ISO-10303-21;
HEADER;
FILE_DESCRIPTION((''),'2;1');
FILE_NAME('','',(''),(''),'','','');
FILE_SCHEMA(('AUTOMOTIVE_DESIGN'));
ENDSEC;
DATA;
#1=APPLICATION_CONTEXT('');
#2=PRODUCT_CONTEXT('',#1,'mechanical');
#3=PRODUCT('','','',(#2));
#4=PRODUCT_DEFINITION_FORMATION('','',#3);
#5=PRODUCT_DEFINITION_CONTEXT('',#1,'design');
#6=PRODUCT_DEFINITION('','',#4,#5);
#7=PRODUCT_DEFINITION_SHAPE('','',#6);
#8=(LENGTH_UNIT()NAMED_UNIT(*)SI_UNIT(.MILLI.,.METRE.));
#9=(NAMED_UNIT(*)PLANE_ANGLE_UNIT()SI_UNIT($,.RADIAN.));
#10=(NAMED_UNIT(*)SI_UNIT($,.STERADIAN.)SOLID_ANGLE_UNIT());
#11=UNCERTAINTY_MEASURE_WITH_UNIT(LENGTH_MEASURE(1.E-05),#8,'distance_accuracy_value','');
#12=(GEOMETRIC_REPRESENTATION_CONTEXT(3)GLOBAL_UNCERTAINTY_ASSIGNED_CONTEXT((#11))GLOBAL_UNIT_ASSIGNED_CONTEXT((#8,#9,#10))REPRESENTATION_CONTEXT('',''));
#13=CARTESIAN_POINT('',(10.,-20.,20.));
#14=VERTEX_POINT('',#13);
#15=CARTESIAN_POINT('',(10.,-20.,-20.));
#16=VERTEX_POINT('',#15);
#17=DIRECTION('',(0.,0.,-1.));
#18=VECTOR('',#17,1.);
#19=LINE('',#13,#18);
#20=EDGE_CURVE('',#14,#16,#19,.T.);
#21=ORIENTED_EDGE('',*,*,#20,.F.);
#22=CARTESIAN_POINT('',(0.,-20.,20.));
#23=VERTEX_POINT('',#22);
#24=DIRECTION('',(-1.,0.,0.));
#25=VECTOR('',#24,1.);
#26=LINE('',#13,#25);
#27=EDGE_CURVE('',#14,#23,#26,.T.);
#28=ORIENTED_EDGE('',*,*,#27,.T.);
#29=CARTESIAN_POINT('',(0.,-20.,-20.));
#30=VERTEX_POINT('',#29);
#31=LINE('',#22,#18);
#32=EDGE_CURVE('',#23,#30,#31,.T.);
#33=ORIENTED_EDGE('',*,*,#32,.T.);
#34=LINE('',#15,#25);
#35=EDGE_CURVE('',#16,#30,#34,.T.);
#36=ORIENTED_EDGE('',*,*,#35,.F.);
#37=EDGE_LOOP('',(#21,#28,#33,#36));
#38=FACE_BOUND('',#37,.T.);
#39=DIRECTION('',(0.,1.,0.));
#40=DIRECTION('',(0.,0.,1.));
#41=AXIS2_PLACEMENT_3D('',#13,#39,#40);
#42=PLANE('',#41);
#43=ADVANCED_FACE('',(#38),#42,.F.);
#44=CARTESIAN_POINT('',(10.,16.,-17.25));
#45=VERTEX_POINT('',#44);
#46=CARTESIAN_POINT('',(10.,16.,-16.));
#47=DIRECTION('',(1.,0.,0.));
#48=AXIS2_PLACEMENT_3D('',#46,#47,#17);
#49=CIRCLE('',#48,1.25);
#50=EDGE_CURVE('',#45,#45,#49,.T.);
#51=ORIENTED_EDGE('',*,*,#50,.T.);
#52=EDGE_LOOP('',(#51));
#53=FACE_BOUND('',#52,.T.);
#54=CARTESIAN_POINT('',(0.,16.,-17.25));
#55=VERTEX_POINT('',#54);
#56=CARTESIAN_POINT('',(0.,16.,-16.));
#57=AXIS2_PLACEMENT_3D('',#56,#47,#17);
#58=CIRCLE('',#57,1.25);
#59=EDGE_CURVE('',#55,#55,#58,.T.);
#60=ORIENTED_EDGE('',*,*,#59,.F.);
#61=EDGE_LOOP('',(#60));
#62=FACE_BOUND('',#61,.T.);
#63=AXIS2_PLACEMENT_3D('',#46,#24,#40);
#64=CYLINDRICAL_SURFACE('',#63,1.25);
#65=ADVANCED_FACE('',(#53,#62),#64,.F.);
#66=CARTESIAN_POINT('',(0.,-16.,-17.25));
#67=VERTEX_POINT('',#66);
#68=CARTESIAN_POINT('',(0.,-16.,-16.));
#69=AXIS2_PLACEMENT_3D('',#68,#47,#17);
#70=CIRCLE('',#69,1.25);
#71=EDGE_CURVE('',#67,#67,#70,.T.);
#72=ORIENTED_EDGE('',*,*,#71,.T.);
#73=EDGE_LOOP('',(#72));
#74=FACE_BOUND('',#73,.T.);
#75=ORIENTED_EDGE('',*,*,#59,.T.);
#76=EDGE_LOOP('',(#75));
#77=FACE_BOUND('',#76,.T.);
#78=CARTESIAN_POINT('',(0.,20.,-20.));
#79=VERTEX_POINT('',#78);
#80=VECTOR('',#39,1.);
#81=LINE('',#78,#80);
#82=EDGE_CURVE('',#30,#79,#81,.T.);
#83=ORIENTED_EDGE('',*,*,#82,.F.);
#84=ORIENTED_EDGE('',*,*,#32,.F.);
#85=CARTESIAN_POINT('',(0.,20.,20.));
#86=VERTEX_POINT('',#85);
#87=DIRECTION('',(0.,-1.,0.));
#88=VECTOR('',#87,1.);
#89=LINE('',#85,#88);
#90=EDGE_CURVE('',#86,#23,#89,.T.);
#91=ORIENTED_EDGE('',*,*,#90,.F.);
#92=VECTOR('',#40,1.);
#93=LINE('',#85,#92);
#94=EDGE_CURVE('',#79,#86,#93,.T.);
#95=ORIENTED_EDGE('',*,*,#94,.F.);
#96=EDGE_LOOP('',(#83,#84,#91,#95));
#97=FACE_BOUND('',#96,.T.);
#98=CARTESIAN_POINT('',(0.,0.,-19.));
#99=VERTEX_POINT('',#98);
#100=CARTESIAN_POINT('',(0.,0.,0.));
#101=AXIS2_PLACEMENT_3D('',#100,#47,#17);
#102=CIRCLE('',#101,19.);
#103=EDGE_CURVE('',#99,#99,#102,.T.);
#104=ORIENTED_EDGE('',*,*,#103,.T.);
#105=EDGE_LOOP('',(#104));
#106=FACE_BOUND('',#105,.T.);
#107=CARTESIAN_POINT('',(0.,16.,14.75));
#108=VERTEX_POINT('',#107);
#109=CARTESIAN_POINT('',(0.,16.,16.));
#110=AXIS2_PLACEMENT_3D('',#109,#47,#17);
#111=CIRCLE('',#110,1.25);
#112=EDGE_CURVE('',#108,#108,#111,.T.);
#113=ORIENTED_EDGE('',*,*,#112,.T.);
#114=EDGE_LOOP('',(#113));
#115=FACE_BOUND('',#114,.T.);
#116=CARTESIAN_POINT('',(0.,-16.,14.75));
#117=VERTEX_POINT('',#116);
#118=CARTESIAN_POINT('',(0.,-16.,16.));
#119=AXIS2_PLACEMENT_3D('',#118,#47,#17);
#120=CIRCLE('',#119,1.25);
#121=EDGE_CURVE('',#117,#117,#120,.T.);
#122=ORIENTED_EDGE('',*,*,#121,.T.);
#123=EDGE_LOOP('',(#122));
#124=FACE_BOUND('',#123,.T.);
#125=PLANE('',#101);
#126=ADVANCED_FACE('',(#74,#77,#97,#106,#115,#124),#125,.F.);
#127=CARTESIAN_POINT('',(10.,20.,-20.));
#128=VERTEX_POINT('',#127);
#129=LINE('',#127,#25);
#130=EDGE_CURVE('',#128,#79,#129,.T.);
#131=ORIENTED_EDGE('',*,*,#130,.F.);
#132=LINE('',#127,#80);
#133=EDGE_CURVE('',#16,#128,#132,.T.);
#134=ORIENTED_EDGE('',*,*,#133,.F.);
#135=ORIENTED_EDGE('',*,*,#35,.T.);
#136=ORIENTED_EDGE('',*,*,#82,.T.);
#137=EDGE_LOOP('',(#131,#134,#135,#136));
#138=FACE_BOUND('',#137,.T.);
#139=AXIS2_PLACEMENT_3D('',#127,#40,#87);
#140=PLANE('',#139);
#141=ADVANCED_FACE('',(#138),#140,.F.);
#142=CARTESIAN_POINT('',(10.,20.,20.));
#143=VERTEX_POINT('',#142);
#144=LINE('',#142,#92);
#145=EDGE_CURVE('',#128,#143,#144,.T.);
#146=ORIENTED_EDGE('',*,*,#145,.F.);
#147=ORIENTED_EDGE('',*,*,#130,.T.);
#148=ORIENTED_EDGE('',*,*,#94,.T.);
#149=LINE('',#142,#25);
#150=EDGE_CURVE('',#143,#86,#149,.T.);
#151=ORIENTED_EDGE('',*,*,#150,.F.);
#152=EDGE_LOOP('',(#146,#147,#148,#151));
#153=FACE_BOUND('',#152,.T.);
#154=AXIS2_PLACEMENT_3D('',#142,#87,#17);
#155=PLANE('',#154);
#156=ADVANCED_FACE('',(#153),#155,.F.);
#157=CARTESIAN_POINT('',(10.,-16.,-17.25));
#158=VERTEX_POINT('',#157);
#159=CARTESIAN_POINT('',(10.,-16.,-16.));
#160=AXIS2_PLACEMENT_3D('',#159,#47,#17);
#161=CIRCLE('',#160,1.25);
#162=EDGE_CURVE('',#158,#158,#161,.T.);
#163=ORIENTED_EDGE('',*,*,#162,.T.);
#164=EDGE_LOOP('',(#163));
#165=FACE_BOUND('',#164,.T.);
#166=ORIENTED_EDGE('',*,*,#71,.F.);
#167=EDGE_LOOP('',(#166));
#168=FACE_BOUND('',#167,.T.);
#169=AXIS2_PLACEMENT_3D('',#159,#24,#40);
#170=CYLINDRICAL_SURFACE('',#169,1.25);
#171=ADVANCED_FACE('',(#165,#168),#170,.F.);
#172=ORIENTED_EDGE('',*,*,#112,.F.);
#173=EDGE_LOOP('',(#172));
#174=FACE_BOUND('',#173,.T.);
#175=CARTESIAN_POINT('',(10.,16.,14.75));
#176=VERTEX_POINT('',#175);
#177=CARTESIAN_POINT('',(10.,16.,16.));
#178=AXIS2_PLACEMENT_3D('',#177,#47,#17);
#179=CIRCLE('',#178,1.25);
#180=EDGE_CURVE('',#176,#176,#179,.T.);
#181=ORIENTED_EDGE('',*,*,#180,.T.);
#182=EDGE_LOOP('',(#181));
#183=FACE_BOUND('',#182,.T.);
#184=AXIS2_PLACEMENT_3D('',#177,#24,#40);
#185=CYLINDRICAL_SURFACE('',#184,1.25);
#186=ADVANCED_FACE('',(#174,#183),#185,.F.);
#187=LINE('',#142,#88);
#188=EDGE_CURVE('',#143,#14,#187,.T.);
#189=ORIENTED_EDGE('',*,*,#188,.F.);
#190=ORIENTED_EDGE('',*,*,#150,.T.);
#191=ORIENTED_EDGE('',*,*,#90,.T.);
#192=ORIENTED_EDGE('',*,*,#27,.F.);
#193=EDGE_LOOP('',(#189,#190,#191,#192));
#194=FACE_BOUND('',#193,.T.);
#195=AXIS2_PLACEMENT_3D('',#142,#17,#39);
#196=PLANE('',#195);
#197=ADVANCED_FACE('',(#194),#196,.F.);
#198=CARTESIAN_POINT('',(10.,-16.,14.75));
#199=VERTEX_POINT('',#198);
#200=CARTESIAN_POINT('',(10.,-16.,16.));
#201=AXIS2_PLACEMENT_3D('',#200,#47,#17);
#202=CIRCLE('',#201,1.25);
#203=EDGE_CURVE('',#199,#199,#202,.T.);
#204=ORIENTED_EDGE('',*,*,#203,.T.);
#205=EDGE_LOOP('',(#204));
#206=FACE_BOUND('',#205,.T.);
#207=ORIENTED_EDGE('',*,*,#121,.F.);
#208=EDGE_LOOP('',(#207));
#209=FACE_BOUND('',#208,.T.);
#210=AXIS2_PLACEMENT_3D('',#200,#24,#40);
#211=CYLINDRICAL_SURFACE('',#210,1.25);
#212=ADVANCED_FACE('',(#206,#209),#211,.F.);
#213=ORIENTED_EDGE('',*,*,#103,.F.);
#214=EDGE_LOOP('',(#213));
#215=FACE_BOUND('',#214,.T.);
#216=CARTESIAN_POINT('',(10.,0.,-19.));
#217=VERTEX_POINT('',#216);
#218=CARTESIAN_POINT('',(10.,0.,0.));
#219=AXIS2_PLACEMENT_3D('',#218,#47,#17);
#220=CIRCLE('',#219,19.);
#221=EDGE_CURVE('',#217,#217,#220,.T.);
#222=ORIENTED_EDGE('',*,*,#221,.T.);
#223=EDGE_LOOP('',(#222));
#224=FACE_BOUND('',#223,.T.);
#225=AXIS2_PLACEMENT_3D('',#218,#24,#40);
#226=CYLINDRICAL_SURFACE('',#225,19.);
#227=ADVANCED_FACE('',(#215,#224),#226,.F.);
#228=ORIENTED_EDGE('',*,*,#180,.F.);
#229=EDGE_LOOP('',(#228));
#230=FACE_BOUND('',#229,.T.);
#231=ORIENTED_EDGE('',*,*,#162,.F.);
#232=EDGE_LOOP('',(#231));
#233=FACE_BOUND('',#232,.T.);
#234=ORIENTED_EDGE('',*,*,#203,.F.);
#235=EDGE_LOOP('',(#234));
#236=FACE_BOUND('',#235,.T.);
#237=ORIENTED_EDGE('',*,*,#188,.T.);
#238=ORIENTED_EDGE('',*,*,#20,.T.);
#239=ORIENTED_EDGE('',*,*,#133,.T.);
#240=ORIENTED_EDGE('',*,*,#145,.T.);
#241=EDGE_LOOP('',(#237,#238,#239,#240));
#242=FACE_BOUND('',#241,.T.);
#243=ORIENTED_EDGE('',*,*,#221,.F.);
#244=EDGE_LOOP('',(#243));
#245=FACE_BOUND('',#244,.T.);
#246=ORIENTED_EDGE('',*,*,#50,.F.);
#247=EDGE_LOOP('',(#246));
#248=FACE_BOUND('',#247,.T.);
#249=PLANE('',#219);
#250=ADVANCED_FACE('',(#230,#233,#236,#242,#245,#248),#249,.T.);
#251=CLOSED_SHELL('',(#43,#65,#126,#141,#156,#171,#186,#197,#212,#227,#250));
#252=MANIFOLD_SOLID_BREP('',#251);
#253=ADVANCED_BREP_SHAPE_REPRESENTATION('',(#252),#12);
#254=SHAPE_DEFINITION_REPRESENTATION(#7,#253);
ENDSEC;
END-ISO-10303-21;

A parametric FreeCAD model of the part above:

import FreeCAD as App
import Part
import Sketcher
Q = App.Units.Quantity

doc = App.newDocument("Part")
body = doc.addObject("PartDesign::Body", "Body")

sketch1 = body.newObject("Sketcher::SketchObject", "Sketch")
sketch1.AttachmentSupport = (doc.getObject("YZ_Plane"), [""])
sketch1.MapMode = "FlatFace"
sketch1.addGeometry(Part.LineSegment(App.Vector(20, 20, 0), App.Vector(-20, 20, 0)), False)
sketch1.addGeometry(Part.LineSegment(App.Vector(-20, 20, 0), App.Vector(-20, -20, 0)), False)
sketch1.addGeometry(Part.LineSegment(App.Vector(-20, -20, 0), App.Vector(20, -20, 0)), False)
sketch1.addGeometry(Part.LineSegment(App.Vector(20, -20, 0), App.Vector(20, 20, 0)), False)
sketch1.addGeometry(Part.Circle(App.Vector(-16, 16, 0), App.Vector(0, 0, 1), 1.2), False)
sketch1.addGeometry(Part.Circle(App.Vector(-16, -16, 0), App.Vector(0, 0, 1), 1.2), False)
sketch1.addGeometry(Part.Circle(App.Vector(16, 16, 0), App.Vector(0, 0, 1), 1.2), False)
sketch1.addGeometry(Part.Circle(App.Vector(0, 0, 0), App.Vector(0, 0, 1), 19), False)
sketch1.addGeometry(Part.Circle(App.Vector(16, -16, 0), App.Vector(0, 0, 1), 1.2), False)
sketch1.addConstraint(Sketcher.Constraint("Coincident", 0, 2, 1, 1))
sketch1.addConstraint(Sketcher.Constraint("Coincident", 1, 2, 2, 1))
sketch1.addConstraint(Sketcher.Constraint("Coincident", 2, 2, 3, 1))
sketch1.addConstraint(Sketcher.Constraint("Coincident", 3, 2, 0, 1))
sketch1.addConstraint(Sketcher.Constraint("Horizontal", 0))
sketch1.addConstraint(Sketcher.Constraint("Vertical", 1))
sketch1.addConstraint(Sketcher.Constraint("Horizontal", 2))
sketch1.addConstraint(Sketcher.Constraint("Vertical", 3))
sketch1.addConstraint(Sketcher.Constraint("Coincident", 7, 3, -1, 1))
sketch1.addConstraint(Sketcher.Constraint("Equal", 4, 5))
sketch1.addConstraint(Sketcher.Constraint("Equal", 5, 6))
sketch1.addConstraint(Sketcher.Constraint("Equal", 6, 8))
sketch1.addConstraint(Sketcher.Constraint("Symmetric", 5, 3, 6, 3, -1, 1))
sketch1.addConstraint(Sketcher.Constraint("Symmetric", 4, 3, 8, 3, -1, 1))
sketch1.addConstraint(Sketcher.Constraint("Symmetric", 0, 2, 2, 2, -1, 1))
sketch1.addConstraint(Sketcher.Constraint("Symmetric", 4, 3, 6, 3, -2))
sketch1.addConstraint(Sketcher.Constraint("Equal", 2, 1))
sketch1.addConstraint(Sketcher.Constraint("Diameter", 7, Q("38 mm")))
sketch1.addConstraint(Sketcher.Constraint("Diameter", 4, Q("2.5 mm")))
sketch1.addConstraint(Sketcher.Constraint("DistanceX", 0, 2, 0, 1, Q("40 mm")))
sketch1.addConstraint(Sketcher.Constraint("DistanceX", 4, 3, -1, 1, Q("16 mm")))
sketch1.addConstraint(Sketcher.Constraint("DistanceY", -1, 1, 4, 3, Q("16 mm")))
pad1 = body.newObject("PartDesign::Pad", "Pad")
pad1.Profile = sketch1
pad1.Length = 10

doc.recompute()
